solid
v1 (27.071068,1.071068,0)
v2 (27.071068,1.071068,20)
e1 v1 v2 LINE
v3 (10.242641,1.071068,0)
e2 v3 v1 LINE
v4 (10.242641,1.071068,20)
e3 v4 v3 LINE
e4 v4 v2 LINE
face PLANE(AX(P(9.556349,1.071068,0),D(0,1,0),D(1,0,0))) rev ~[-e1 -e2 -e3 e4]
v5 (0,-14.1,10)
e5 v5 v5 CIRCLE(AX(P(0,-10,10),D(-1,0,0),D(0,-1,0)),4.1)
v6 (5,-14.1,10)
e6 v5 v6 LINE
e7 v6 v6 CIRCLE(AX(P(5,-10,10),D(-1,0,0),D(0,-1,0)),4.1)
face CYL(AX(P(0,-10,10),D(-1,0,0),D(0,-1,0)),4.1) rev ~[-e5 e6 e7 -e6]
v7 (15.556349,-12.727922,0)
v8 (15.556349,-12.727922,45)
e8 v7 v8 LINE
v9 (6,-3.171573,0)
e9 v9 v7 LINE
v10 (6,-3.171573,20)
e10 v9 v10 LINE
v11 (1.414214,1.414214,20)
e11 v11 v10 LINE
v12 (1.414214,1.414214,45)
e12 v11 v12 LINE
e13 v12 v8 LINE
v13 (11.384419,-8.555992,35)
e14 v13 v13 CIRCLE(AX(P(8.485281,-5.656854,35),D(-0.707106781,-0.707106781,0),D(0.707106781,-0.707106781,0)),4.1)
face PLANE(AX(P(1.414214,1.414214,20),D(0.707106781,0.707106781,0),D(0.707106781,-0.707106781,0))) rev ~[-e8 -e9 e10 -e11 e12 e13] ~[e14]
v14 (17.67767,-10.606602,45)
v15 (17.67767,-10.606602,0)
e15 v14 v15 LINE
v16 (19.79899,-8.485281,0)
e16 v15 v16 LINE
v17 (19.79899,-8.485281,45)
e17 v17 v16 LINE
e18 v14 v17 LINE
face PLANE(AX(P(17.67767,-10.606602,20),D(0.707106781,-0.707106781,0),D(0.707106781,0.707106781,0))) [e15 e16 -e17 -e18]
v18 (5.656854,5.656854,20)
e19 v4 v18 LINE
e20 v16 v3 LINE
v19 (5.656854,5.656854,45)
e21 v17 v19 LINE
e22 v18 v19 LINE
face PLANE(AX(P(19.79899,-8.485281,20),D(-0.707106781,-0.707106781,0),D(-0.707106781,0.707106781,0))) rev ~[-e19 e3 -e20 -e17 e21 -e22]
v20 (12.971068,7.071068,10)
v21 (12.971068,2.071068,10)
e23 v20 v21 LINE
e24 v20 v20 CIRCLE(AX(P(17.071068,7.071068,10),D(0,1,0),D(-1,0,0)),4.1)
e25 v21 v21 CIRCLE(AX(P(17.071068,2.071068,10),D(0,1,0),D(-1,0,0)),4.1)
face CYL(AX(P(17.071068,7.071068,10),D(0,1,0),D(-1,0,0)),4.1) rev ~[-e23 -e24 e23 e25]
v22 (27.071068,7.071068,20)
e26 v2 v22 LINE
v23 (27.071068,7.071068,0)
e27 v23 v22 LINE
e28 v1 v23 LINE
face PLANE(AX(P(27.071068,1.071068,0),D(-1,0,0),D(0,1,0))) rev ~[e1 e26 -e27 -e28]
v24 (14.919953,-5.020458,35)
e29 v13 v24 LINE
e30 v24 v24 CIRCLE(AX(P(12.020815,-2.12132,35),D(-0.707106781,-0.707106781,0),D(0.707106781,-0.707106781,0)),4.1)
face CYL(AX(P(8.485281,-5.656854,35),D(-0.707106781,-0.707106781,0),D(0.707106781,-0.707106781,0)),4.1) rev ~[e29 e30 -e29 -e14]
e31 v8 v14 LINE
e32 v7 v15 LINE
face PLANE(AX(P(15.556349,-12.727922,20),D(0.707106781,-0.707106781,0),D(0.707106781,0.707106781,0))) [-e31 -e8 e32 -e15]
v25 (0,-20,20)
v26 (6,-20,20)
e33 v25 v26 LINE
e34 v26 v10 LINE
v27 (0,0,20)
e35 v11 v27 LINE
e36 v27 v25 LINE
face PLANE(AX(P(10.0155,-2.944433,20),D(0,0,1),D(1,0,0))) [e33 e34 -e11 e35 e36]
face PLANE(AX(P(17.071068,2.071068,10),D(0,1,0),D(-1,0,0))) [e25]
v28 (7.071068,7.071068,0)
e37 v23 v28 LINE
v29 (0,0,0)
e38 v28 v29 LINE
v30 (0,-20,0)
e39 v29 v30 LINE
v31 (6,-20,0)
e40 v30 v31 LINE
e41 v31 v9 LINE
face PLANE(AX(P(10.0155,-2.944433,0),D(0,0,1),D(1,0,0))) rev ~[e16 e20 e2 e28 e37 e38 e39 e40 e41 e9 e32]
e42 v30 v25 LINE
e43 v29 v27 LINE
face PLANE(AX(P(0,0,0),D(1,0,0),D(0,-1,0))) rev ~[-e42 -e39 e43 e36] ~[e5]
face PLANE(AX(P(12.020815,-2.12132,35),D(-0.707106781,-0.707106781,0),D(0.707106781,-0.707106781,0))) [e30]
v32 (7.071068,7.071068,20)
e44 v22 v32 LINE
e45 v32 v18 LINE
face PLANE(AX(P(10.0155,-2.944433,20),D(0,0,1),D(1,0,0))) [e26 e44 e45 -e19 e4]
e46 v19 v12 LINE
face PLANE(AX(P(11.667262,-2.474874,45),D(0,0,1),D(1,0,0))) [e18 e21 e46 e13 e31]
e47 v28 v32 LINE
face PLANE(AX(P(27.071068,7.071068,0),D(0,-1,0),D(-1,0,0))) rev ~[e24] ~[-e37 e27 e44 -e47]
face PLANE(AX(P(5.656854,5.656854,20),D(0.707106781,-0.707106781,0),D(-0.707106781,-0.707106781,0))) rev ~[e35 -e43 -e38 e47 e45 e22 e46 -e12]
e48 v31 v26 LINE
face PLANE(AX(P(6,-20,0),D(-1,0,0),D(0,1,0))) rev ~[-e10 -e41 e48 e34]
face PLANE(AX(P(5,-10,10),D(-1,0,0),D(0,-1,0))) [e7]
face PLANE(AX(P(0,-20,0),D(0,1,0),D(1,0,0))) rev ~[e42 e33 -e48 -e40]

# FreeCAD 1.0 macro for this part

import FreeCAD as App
import Part
import Sketcher
Q = App.Units.Quantity


def add_polygon(sketch, points):
    """Adds a closed chain of lines whose ends are joined by coincident constraints."""
    first, n = sketch.GeometryCount, len(points)
    for a, b in zip(points, points[1:] + points[:1]):
        sketch.addGeometry(Part.LineSegment(App.Vector(*a, 0), App.Vector(*b, 0)), False)
    for i in range(n):
        sketch.addConstraint(Sketcher.Constraint("Coincident", first + i, 2, first + (i + 1) % n, 1))

doc = App.newDocument("Part")
body = doc.addObject("PartDesign::Body", "Body")

sketch1 = body.newObject("Sketcher::SketchObject", "Sketch")
sketch1.AttachmentSupport = (doc.getObject("XY_Plane"), [""])
sketch1.MapMode = "FlatFace"
add_polygon(sketch1, [(7.071068, 7.071068), (0, 0), (0, -20), (6, -20), (6, -2.485281), (9.556349, 1.071068), (27.071068, 1.071068), (27.071068, 7.071068)])
sketch1.addConstraint([
    Sketcher.Constraint("Vertical", 1),
    Sketcher.Constraint("Horizontal", 2),
    Sketcher.Constraint("Vertical", 3),
    Sketcher.Constraint("Horizontal", 5),
    Sketcher.Constraint("Vertical", 6),
    Sketcher.Constraint("Horizontal", 7),
    Sketcher.Constraint("Coincident", 0, 2, -1, 1),
    Sketcher.Constraint("Parallel", 0, 4),
    Sketcher.Constraint("Equal", 7, 1),
    Sketcher.Constraint("Equal", 5, 3),
    Sketcher.Constraint("Equal", 2, 6),
    Sketcher.Constraint("DistanceX", 2, 1, 2, 2, 6.0),
    Sketcher.Constraint("DistanceX", 7, 2, 7, 1, 20.0),
    Sketcher.Constraint("Distance", 0, 10.0),
    Sketcher.Constraint("DistanceX", 5, 1, 5, 2, 17.514719),
])
pad1 = body.newObject("PartDesign::Pad", "Pad")
pad1.Profile = sketch1
pad1.Length = 20

sketch2 = body.newObject("Sketcher::SketchObject", "Sketch001")
sketch2.AttachmentSupport = (doc.getObject("XY_Plane"), [""])
sketch2.MapMode = "FlatFace"
sketch2.AttachmentOffset = App.Placement(App.Vector(0, 0, 20), App.Rotation())
add_polygon(sketch2, [(5.656854, 5.656854), (1.414214, 1.414214), (15.556349, -12.727922), (17.67767, -10.606602), (19.79899, -8.485281)])
sketch2.addConstraint([
    Sketcher.Constraint("Perpendicular", 0, 1),
    Sketcher.Constraint("Perpendicular", 1, 2),
    Sketcher.Constraint("Parallel", 2, 3),
    Sketcher.Constraint("Perpendicular", 3, 4),
    Sketcher.Constraint("Equal", 2, 3),
    Sketcher.Constraint("Angle", 0, Q("-135 deg")),
    Sketcher.Constraint("Distance", 0, 6.0),
    Sketcher.Constraint("Distance", 1, 20.0),
    Sketcher.Constraint("DistanceY", 2, 2, -1, 1, 10.606602),
    Sketcher.Constraint("DistanceX", -1, 1, 1, 2, 15.556349),
])
pad2 = body.newObject("PartDesign::Pad", "Pad001")
pad2.Profile = sketch2
pad2.Type = "TwoLengths"
pad2.Length = 25
pad2.Length2 = 20

sketch3 = body.newObject("Sketcher::SketchObject", "Sketch002")
sketch3.AttachmentSupport = (doc.getObject("YZ_Plane"), [""])
sketch3.MapMode = "FlatFace"
sketch3.addGeometry(Part.Circle(App.Vector(-10, 10, 0), App.Vector(0, 0, 1), 4.1), False)
sketch3.addConstraint([
    Sketcher.Constraint("Diameter", 0, 8.2),
    Sketcher.Constraint("DistanceX", 0, 3, -1, 1, 10.0),
    Sketcher.Constraint("DistanceY", -1, 1, 0, 3, 10.0),
])
pocket1 = body.newObject("PartDesign::Pocket", "Pocket")
pocket1.Profile = sketch3
pocket1.Length = 5
pocket1.Reversed = True

sketch4 = body.newObject("Sketcher::SketchObject", "Sketch003")
sketch4.AttachmentSupport = (doc.getObject("XZ_Plane"), [""])
sketch4.MapMode = "FlatFace"
sketch4.AttachmentOffset = App.Placement(App.Vector(0, 0, -7.071068), App.Rotation())
sketch4.addGeometry(Part.Circle(App.Vector(17.071068, 10, 0), App.Vector(0, 0, 1), 4.1), False)
sketch4.addConstraint([
    Sketcher.Constraint("Diameter", 0, 8.2),
    Sketcher.Constraint("DistanceY", -1, 1, 0, 3, 10.0),
    Sketcher.Constraint("DistanceX", -1, 1, 0, 3, 17.071068),
])
pocket2 = body.newObject("PartDesign::Pocket", "Pocket001")
pocket2.Profile = sketch4
pocket2.Length = 5
pocket2.Reversed = True

sketch5 = body.newObject("Sketcher::SketchObject", "Sketch004")
sketch5.Placement = App.Placement(App.Vector(1.414214, 1.414214, 0), App.Rotation(App.Vector(0.707106781, -0.707106781, 0), App.Vector(0, 0, 0.999999999), App.Vector(-0.707106781, -0.707106781, 0), "ZXY"))
sketch5.addGeometry(Part.Circle(App.Vector(10, 35, 0), App.Vector(0, 0, 1), 4.1), False)
sketch5.addConstraint([
    Sketcher.Constraint("Diameter", 0, 8.2),
    Sketcher.Constraint("DistanceX", -1, 1, 0, 3, 10.0),
    Sketcher.Constraint("DistanceY", -1, 1, 0, 3, 35.0),
])
pocket3 = body.newObject("PartDesign::Pocket", "Pocket002")
pocket3.Profile = sketch5
pocket3.Length = 5

doc.recompute()
